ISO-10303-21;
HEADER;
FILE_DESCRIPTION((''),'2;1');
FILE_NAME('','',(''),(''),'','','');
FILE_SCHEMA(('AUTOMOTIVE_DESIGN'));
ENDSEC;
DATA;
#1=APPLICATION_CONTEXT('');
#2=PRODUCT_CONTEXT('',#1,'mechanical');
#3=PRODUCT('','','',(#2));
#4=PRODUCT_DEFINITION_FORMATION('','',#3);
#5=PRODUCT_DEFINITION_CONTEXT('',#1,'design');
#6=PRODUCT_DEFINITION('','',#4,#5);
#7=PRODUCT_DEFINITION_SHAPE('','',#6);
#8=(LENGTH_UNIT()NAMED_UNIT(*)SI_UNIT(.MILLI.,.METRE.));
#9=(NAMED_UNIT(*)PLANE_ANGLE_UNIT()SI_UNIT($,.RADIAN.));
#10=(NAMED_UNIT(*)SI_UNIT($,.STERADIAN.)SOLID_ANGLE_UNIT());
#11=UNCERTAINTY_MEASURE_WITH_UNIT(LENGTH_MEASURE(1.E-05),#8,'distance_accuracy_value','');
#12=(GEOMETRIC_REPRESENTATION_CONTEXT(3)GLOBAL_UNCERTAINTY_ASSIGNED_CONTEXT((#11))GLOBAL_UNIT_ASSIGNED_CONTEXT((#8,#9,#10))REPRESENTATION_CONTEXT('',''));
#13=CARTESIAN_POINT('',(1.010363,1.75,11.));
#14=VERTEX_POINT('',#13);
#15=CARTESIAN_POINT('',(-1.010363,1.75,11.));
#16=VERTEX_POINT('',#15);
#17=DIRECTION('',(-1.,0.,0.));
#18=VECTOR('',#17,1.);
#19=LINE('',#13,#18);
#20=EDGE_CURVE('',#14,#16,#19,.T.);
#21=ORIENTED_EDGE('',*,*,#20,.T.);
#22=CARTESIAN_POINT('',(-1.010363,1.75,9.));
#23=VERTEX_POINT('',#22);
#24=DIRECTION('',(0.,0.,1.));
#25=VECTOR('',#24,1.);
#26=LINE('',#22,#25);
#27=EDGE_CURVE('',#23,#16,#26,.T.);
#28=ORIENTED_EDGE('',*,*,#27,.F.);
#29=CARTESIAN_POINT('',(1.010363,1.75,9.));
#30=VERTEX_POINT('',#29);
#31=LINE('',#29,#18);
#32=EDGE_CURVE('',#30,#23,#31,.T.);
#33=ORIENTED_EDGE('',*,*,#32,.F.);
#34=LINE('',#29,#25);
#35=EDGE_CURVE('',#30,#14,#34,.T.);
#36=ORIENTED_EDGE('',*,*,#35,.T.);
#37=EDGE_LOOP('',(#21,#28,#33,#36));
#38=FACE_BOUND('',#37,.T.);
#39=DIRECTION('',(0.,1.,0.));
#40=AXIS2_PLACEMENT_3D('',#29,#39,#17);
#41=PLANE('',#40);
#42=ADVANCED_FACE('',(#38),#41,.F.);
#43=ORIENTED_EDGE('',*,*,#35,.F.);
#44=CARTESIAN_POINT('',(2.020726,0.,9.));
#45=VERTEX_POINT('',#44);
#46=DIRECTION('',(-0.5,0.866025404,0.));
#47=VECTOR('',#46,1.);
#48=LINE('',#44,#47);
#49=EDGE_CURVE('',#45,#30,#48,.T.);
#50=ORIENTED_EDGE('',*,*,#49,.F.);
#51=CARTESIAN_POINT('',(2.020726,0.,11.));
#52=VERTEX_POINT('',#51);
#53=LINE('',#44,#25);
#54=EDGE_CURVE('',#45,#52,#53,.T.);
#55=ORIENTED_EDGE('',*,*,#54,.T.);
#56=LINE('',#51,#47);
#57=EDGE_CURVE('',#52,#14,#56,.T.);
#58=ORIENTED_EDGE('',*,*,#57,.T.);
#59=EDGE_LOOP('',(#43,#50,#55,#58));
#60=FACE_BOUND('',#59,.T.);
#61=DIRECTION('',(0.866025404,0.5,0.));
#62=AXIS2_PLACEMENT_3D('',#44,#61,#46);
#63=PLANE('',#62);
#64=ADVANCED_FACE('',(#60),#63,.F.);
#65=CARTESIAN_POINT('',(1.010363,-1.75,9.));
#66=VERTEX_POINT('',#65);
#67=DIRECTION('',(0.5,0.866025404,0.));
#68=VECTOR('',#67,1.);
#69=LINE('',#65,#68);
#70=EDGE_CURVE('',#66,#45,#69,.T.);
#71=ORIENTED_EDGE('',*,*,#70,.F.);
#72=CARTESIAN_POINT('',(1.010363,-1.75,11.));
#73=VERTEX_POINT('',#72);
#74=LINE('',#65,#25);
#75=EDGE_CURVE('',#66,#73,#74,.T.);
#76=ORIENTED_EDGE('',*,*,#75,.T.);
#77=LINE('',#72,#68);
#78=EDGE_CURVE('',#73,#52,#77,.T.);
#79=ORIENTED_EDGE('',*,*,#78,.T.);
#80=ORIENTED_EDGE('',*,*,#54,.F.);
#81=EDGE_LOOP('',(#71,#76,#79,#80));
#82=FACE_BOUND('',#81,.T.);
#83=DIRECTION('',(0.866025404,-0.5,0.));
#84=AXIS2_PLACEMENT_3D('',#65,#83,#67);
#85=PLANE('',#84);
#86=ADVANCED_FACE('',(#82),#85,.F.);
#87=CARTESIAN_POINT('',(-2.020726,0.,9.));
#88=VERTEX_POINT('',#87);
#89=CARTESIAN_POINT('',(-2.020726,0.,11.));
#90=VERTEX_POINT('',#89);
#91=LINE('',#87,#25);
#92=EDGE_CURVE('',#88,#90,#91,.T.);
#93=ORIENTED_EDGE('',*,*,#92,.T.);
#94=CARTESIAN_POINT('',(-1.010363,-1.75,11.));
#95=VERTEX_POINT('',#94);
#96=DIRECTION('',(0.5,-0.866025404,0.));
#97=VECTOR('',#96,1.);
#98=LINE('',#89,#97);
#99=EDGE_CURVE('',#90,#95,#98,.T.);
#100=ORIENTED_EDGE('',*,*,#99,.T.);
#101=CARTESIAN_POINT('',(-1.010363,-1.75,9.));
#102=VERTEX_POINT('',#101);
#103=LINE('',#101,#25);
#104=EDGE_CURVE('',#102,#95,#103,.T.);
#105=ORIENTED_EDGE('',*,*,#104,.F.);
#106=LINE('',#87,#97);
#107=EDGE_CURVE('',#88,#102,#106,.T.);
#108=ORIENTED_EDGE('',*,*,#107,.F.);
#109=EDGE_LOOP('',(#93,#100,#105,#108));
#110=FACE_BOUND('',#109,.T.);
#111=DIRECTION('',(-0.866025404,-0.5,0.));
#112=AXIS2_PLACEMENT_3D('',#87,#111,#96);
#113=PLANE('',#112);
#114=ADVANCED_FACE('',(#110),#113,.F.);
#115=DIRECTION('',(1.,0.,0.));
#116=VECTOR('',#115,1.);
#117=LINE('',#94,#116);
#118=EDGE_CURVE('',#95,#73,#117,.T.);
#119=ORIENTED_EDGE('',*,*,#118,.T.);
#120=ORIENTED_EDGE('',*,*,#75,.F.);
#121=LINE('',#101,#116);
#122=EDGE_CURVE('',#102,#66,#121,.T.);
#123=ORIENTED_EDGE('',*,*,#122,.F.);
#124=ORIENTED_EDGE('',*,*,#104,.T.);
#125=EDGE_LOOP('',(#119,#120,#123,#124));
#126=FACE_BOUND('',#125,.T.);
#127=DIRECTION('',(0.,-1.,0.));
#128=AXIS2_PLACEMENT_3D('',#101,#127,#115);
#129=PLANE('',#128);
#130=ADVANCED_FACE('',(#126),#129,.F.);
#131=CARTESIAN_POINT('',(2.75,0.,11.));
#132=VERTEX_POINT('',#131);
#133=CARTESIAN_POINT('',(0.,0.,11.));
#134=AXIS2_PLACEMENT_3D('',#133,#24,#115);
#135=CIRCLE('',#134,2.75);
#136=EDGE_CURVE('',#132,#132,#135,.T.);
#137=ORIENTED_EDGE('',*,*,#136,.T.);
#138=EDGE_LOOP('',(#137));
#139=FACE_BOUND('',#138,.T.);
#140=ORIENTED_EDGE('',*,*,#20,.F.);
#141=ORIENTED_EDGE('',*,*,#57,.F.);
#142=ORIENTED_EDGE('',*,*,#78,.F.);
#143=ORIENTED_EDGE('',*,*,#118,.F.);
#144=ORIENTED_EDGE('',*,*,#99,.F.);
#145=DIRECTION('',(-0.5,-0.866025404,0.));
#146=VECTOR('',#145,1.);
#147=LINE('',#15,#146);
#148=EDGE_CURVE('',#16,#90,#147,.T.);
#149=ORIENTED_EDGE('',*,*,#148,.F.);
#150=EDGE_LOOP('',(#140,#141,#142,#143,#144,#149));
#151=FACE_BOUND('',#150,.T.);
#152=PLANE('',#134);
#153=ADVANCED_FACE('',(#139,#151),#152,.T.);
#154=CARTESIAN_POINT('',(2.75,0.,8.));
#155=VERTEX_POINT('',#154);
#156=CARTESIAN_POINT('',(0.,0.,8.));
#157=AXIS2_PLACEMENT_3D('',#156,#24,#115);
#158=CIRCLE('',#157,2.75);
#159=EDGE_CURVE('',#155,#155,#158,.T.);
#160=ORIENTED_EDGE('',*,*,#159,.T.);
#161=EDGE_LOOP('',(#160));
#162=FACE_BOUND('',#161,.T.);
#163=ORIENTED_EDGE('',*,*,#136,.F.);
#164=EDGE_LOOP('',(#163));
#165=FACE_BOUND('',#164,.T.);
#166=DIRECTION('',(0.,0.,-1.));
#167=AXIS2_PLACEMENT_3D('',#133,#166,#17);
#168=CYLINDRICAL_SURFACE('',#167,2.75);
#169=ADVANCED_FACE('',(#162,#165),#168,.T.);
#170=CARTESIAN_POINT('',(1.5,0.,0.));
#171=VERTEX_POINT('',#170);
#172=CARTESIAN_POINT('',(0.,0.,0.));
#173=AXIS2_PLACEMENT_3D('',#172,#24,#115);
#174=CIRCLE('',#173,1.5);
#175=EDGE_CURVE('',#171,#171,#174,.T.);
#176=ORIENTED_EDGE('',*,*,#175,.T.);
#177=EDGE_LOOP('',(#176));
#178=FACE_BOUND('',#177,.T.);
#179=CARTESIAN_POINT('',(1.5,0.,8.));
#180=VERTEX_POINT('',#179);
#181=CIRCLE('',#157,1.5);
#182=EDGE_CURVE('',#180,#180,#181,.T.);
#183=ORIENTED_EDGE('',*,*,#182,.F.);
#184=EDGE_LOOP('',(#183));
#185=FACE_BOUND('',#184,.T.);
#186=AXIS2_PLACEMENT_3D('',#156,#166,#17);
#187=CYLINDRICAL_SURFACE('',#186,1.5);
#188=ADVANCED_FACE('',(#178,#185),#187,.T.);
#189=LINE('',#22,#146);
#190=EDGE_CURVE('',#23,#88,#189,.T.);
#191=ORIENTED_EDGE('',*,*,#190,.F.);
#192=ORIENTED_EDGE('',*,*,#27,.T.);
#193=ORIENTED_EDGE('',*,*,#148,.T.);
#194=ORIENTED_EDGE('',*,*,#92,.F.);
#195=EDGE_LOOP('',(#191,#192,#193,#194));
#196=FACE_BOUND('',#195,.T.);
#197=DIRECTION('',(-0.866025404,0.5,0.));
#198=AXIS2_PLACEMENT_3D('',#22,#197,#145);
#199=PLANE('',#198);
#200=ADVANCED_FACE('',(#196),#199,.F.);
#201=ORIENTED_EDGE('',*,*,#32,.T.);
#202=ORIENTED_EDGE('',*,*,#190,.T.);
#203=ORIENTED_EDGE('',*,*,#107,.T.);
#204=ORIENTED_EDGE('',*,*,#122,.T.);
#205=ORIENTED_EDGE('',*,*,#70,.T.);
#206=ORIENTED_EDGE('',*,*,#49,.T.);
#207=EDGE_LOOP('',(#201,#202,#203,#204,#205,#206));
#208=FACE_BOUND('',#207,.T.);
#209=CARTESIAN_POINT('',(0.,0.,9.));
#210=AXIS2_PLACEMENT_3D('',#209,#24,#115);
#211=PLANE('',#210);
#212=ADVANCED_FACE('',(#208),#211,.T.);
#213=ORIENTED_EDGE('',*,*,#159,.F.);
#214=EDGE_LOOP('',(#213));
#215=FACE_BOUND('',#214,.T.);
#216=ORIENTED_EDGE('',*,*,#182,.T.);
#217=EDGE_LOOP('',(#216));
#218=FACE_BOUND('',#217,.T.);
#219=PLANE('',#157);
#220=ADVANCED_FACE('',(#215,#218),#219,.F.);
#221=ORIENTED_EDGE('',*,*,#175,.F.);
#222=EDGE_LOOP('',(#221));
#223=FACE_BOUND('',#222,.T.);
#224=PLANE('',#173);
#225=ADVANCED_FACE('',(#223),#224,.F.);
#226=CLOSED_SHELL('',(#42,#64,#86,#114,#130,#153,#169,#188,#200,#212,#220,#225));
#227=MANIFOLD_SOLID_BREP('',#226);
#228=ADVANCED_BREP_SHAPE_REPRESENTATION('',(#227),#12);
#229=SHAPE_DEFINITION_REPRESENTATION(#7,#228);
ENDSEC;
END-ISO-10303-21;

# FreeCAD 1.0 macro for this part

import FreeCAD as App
import Part
import Sketcher
Q = App.Units.Quantity

doc = App.newDocument("Part")
body = doc.addObject("PartDesign::Body", "Body")

# Sketch on XY plane
sketch1 = body.newObject("Sketcher::SketchObject", "Sketch")
sketch1.AttachmentSupport = (doc.getObject("XY_Plane"), [""])
sketch1.MapMode = "FlatFace"
sketch1.addGeometry(Part.Circle(App.Vector(0, 0, 0), App.Vector(0, 0, 1), 1.5), False)
sketch1.addConstraint(Sketcher.Constraint("Coincident", 0, 3, -1, 1))
sketch1.addConstraint(Sketcher.Constraint("Diameter", 0, Q("3 mm")))
pad1 = body.newObject("PartDesign::Pad", "Pad")
pad1.Profile = sketch1
pad1.Length = 8

# Sketch on XY plane
sketch2 = body.newObject("Sketcher::SketchObject", "Sketch001")
sketch2.AttachmentSupport = (doc.getObject("XY_Plane"), [""])
sketch2.MapMode = "FlatFace"
sketch2.AttachmentOffset = App.Placement(App.Vector(0, 0, 8), App.Rotation())
sketch2.addGeometry(Part.Circle(App.Vector(0, 0, 0), App.Vector(0, 0, 1), 2.8), False)
sketch2.addConstraint(Sketcher.Constraint("Coincident", 0, 3, -1, 1))
sketch2.addConstraint(Sketcher.Constraint("Diameter", 0, Q("5.5 mm")))
pad2 = body.newObject("PartDesign::Pad", "Pad001")
pad2.Profile = sketch2
pad2.Length = 3

# Sketch on XY plane
sketch3 = body.newObject("Sketcher::SketchObject", "Sketch002")
sketch3.AttachmentSupport = (doc.getObject("XY_Plane"), [""])
sketch3.MapMode = "FlatFace"
sketch3.AttachmentOffset = App.Placement(App.Vector(0, 0, 11), App.Rotation())
sketch3.addGeometry(Part.LineSegment(App.Vector(2, 0, 0), App.Vector(1, 1.8, 0)), False)
sketch3.addGeometry(Part.LineSegment(App.Vector(1, 1.8, 0), App.Vector(-1, 1.8, 0)), False)
sketch3.addGeometry(Part.LineSegment(App.Vector(-1, 1.8, 0), App.Vector(-2, 0, 0)), False)
sketch3.addGeometry(Part.LineSegment(App.Vector(-2, 0, 0), App.Vector(-1, -1.8, 0)), False)
sketch3.addGeometry(Part.LineSegment(App.Vector(-1, -1.8, 0), App.Vector(1, -1.8, 0)), False)
sketch3.addGeometry(Part.LineSegment(App.Vector(1, -1.8, 0), App.Vector(2, 0, 0)), False)
sketch3.addConstraint(Sketcher.Constraint("Coincident", 0, 2, 1, 1))
sketch3.addConstraint(Sketcher.Constraint("Coincident", 1, 2, 2, 1))
sketch3.addConstraint(Sketcher.Constraint("Coincident", 2, 2, 3, 1))
sketch3.addConstraint(Sketcher.Constraint("Coincident", 3, 2, 4, 1))
sketch3.addConstraint(Sketcher.Constraint("Coincident", 4, 2, 5, 1))
sketch3.addConstraint(Sketcher.Constraint("Coincident", 5, 2, 0, 1))
sketch3.addConstraint(Sketcher.Constraint("Horizontal", 1))
sketch3.addConstraint(Sketcher.Constraint("Horizontal", 4))
sketch3.addConstraint(Sketcher.Constraint("Symmetric", 0, 2, 3, 2, -1, 1))
sketch3.addConstraint(Sketcher.Constraint("Symmetric", 2, 2, 5, 2, -1, 1))
sketch3.addConstraint(Sketcher.Constraint("PointOnObject", 2, 2, -1))
sketch3.addConstraint(Sketcher.Constraint("Parallel", 2, 5))
sketch3.addConstraint(Sketcher.Constraint("Vertical", 1, 2, 3, 2))
sketch3.addConstraint(Sketcher.Constraint("Angle", 0, Q("120 deg")))
sketch3.addConstraint(Sketcher.Constraint("DistanceY", 3, 2, 1, 2, Q("3.5 mm")))
sketch3.addConstraint(Sketcher.Constraint("DistanceX", 1, 2, 1, 1, Q("2.020726 mm")))
pocket1 = body.newObject("PartDesign::Pocket", "Pocket")
pocket1.Profile = sketch3
pocket1.Length = 2

doc.recompute()
